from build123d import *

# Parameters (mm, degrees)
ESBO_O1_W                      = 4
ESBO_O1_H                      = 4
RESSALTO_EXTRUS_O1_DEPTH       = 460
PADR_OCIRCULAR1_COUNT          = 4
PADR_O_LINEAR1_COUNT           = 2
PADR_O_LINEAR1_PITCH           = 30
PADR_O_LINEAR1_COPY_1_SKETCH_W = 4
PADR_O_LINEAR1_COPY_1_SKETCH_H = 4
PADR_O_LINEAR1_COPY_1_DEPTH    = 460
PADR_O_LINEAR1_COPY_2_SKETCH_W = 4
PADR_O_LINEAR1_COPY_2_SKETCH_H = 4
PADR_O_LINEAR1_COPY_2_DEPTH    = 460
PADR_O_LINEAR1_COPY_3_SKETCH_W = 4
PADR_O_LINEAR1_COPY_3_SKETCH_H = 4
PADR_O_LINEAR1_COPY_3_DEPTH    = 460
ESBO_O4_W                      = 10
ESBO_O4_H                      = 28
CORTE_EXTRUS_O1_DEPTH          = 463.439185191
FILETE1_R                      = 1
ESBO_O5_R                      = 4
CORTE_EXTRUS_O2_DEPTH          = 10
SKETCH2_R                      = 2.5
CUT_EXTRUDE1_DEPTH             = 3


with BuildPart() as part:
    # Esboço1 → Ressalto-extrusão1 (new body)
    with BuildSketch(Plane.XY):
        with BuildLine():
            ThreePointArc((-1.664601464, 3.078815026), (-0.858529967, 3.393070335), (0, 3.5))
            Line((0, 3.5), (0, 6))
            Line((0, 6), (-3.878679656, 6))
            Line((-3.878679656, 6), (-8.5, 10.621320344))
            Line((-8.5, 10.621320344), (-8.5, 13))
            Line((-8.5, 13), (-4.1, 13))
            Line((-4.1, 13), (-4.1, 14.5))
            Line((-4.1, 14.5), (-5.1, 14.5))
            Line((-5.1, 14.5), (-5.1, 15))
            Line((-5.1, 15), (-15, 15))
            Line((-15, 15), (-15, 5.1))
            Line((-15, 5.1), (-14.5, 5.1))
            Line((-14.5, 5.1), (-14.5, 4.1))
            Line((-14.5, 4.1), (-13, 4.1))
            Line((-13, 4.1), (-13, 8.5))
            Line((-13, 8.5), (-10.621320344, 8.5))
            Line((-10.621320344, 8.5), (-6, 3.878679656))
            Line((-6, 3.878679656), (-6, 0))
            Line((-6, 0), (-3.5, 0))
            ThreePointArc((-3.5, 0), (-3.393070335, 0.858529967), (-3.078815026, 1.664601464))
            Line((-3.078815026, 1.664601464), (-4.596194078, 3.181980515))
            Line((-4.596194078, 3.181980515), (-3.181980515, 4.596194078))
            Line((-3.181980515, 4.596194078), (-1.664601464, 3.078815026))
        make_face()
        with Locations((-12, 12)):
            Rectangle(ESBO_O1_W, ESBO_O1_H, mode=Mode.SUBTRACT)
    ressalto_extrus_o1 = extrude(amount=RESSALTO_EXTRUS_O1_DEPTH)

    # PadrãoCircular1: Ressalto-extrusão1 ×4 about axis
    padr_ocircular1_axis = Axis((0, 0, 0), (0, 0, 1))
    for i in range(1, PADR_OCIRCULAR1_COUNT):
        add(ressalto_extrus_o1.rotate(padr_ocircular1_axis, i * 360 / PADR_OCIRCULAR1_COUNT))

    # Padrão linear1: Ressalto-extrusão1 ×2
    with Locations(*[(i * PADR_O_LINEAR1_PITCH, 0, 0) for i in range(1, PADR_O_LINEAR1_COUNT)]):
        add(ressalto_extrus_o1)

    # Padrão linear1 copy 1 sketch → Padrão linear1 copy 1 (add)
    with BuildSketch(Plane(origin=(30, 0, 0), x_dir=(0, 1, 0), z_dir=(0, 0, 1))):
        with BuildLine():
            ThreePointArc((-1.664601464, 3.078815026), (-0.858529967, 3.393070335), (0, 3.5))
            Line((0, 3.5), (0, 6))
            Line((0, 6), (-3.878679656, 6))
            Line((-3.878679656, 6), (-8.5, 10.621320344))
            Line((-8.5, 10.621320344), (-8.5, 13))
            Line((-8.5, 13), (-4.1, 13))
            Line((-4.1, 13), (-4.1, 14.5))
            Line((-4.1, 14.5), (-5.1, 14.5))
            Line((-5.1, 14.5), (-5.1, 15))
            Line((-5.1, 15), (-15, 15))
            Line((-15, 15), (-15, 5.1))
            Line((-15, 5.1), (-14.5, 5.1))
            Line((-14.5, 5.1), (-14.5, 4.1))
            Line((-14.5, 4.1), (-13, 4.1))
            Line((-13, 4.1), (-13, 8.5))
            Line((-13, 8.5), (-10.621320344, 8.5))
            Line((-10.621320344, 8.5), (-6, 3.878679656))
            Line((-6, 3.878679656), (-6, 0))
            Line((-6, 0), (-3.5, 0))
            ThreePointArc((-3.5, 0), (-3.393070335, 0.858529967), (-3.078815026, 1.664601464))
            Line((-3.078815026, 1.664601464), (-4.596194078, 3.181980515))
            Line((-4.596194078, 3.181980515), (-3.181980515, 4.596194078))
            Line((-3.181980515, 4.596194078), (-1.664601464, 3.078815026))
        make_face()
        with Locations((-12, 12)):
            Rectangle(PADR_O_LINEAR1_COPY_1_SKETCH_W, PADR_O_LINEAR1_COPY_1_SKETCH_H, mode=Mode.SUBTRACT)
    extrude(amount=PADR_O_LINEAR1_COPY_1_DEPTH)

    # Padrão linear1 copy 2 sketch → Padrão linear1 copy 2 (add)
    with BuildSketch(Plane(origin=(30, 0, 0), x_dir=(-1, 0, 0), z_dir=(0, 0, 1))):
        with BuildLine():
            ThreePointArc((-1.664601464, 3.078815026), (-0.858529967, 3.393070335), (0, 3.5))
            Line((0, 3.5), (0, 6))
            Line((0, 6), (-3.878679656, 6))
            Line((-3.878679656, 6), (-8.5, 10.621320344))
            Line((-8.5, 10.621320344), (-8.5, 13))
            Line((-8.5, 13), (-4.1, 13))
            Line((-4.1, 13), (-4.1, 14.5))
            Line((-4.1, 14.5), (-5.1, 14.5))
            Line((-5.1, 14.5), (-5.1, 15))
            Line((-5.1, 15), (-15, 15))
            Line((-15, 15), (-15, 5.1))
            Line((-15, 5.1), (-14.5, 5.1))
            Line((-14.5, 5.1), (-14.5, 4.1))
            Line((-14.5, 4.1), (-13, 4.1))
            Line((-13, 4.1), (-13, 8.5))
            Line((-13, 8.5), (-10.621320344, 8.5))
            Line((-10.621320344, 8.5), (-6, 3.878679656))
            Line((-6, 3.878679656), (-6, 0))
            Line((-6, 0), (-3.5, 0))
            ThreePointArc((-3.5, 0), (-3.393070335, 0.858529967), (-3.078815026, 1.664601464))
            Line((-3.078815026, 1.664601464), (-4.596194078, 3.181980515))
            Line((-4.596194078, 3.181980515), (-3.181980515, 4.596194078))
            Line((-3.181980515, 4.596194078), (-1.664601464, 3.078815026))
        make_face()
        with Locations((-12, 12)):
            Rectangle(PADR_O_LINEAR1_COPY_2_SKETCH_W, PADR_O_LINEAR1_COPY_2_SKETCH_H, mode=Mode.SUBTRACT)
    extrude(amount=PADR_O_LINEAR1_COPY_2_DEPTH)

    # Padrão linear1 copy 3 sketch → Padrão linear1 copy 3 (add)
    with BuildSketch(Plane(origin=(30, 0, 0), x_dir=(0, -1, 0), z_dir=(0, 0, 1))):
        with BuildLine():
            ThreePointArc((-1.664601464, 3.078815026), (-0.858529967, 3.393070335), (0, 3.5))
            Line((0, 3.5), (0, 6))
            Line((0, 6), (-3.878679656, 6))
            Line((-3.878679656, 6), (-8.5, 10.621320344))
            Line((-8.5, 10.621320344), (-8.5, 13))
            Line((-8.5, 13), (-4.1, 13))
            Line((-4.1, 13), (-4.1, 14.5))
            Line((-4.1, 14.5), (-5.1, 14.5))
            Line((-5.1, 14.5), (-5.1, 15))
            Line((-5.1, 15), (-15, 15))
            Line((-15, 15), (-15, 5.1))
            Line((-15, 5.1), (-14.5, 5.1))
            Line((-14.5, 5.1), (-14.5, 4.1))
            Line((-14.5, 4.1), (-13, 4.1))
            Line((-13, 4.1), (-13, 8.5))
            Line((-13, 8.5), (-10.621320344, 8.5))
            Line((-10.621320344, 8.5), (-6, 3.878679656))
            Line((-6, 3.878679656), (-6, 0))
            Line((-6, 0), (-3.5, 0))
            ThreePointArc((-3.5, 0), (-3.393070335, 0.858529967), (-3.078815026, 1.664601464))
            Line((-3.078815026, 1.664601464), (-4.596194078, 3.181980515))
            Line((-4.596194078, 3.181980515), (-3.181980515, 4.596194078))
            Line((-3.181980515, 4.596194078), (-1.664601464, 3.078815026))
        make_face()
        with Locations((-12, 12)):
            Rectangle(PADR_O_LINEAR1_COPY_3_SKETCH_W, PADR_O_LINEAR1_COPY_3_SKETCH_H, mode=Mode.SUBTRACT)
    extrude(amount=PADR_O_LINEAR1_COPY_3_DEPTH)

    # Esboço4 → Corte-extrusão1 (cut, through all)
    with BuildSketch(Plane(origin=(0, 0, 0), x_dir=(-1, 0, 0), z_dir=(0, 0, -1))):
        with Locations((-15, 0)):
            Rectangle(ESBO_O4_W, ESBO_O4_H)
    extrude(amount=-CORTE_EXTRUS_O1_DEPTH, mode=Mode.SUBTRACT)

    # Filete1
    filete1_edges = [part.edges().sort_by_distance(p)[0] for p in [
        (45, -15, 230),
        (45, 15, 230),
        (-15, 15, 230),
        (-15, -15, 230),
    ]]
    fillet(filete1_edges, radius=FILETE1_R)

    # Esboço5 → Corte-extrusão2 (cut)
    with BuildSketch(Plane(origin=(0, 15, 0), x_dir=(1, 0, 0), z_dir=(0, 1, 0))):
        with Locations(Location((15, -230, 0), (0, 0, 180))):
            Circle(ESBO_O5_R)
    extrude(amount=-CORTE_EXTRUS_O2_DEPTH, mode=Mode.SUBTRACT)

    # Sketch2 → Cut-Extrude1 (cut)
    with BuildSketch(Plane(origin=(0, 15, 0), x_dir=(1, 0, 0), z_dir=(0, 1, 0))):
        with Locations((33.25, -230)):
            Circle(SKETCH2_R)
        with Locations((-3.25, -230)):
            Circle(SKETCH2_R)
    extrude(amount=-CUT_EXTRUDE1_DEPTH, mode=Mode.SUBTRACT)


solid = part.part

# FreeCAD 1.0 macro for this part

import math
import FreeCAD as App
import Part
import Sketcher
Q = App.Units.Quantity


def edges_at(feature, points):
    """Names of the edges that pass closest to the given points."""
    edges = feature.Shape.Edges
    near = lambda p: min(range(len(edges)), key=lambda i: edges[i].distToShape(Part.Vertex(*p))[0])
    return sorted({f"Edge{near(p) + 1}" for p in points})

doc = App.newDocument("Part")
params = doc.addObject("Spreadsheet::Sheet", "Params")
for row, (alias, value) in enumerate([
    ("sketch1_radius", "3.5 mm"),
    ("sketch1_width", "1 mm"),
    ("sketch1_width2", "4 mm"),
    ("sketch1_length", "2 mm"),
    ("sketch1_width3", "4.4 mm"),
    ("pad1_length", "460 mm"),
    ("linearpattern_pitch", "30 mm"),
    ("sketch2_radius", "3.5 mm"),
    ("sketch2_width", "1 mm"),
    ("sketch2_width2", "4 mm"),
    ("sketch2_length", "2 mm"),
    ("sketch2_width3", "2.5 mm"),
    ("pad2_length", "460 mm"),
    ("sketch3_radius", "3.5 mm"),
    ("sketch3_width", "1 mm"),
    ("sketch3_width2", "4 mm"),
    ("sketch3_length", "2 mm"),
    ("sketch3_width3", "4.4 mm"),
    ("pad3_length", "460 mm"),
    ("sketch4_radius", "3.5 mm"),
    ("sketch4_width", "1 mm"),
    ("sketch4_width2", "4 mm"),
    ("sketch4_length", "2 mm"),
    ("sketch4_width3", "2.5 mm"),
    ("pad4_length", "460 mm"),
    ("sketch5_width", "10 mm"),
    ("sketch5_height", "28 mm"),
    ("fillet_radius", "1 mm"),
    ("sketch6_diameter", "8 mm"),
    ("pocket2_length", "10 mm"),
    ("sketch7_diameter", "5 mm"),
    ("pocket3_length", "3 mm"),
], start=1):
    params.set(f"A{row}", alias)
    params.set(f"B{row}", "=" + value)
    params.setAlias(f"B{row}", alias)

body = doc.addObject("PartDesign::Body", "Body")

sketch1 = body.newObject("Sketcher::SketchObject", "Sketch")
sketch1.AttachmentSupport = (doc.getObject("XY_Plane"), [""])
sketch1.MapMode = "FlatFace"
sketch1.addGeometry(Part.ArcOfCircle(Part.Circle(App.Vector(0, 0, 0), App.Vector(0, 0, 1), 3.5), math.radians(90), math.radians(118)), False)
sketch1.addGeometry(Part.LineSegment(App.Vector(0, 3.5, 0), App.Vector(0, 6, 0)), False)
sketch1.addGeometry(Part.LineSegment(App.Vector(0, 6, 0), App.Vector(-3.9, 6, 0)), False)
sketch1.addGeometry(Part.LineSegment(App.Vector(-3.9, 6, 0), App.Vector(-8.5, 10.6, 0)), False)
sketch1.addGeometry(Part.LineSegment(App.Vector(-8.5, 10.6, 0), App.Vector(-8.5, 13, 0)), False)
sketch1.addGeometry(Part.LineSegment(App.Vector(-8.5, 13, 0), App.Vector(-4.1, 13, 0)), False)
sketch1.addGeometry(Part.LineSegment(App.Vector(-4.1, 13, 0), App.Vector(-4.1, 14.5, 0)), False)
sketch1.addGeometry(Part.LineSegment(App.Vector(-4.1, 14.5, 0), App.Vector(-5.1, 14.5, 0)), False)
sketch1.addGeometry(Part.LineSegment(App.Vector(-5.1, 14.5, 0), App.Vector(-5.1, 15, 0)), False)
sketch1.addGeometry(Part.LineSegment(App.Vector(-5.1, 15, 0), App.Vector(-15, 15, 0)), False)
sketch1.addGeometry(Part.LineSegment(App.Vector(-15, 15, 0), App.Vector(-15, 5.1, 0)), False)
sketch1.addGeometry(Part.LineSegment(App.Vector(-15, 5.1, 0), App.Vector(-14.5, 5.1, 0)), False)
sketch1.addGeometry(Part.LineSegment(App.Vector(-14.5, 5.1, 0), App.Vector(-14.5, 4.1, 0)), False)
sketch1.addGeometry(Part.LineSegment(App.Vector(-14.5, 4.1, 0), App.Vector(-13, 4.1, 0)), False)
sketch1.addGeometry(Part.LineSegment(App.Vector(-13, 4.1, 0), App.Vector(-13, 8.5, 0)), False)
sketch1.addGeometry(Part.LineSegment(App.Vector(-13, 8.5, 0), App.Vector(-10.6, 8.5, 0)), False)
sketch1.addGeometry(Part.LineSegment(App.Vector(-10.6, 8.5, 0), App.Vector(-6, 3.9, 0)), False)
sketch1.addGeometry(Part.LineSegment(App.Vector(-6, 3.9, 0), App.Vector(-6, 0, 0)), False)
sketch1.addGeometry(Part.LineSegment(App.Vector(-6, 0, 0), App.Vector(-3.5, 0, 0)), False)
sketch1.addGeometry(Part.ArcOfCircle(Part.Circle(App.Vector(0, 0, 0), App.Vector(0, 0, 1), 3.5), math.radians(152), math.radians(180)), False)
sketch1.addGeometry(Part.LineSegment(App.Vector(-3.1, 1.7, 0), App.Vector(-4.6, 3.2, 0)), False)
sketch1.addGeometry(Part.LineSegment(App.Vector(-4.6, 3.2, 0), App.Vector(-3.2, 4.6, 0)), False)
sketch1.addGeometry(Part.LineSegment(App.Vector(-3.2, 4.6, 0), App.Vector(-1.7, 3.1, 0)), False)
sketch1.addGeometry(Part.LineSegment(App.Vector(-10, 10, 0), App.Vector(-14, 10, 0)), False)
sketch1.addGeometry(Part.LineSegment(App.Vector(-14, 10, 0), App.Vector(-14, 14, 0)), False)
sketch1.addGeometry(Part.LineSegment(App.Vector(-14, 14, 0), App.Vector(-10, 14, 0)), False)
sketch1.addGeometry(Part.LineSegment(App.Vector(-10, 14, 0), App.Vector(-10, 10, 0)), False)
sketch1.addConstraint(Sketcher.Constraint("Coincident", 0, 1, 1, 1))
sketch1.addConstraint(Sketcher.Constraint("Coincident", 1, 2, 2, 1))
sketch1.addConstraint(Sketcher.Constraint("Coincident", 2, 2, 3, 1))
sketch1.addConstraint(Sketcher.Constraint("Coincident", 3, 2, 4, 1))
sketch1.addConstraint(Sketcher.Constraint("Coincident", 4, 2, 5, 1))
sketch1.addConstraint(Sketcher.Constraint("Coincident", 5, 2, 6, 1))
sketch1.addConstraint(Sketcher.Constraint("Coincident", 6, 2, 7, 1))
sketch1.addConstraint(Sketcher.Constraint("Coincident", 7, 2, 8, 1))
sketch1.addConstraint(Sketcher.Constraint("Coincident", 8, 2, 9, 1))
sketch1.addConstraint(Sketcher.Constraint("Coincident", 9, 2, 10, 1))
sketch1.addConstraint(Sketcher.Constraint("Coincident", 10, 2, 11, 1))
sketch1.addConstraint(Sketcher.Constraint("Coincident", 11, 2, 12, 1))
sketch1.addConstraint(Sketcher.Constraint("Coincident", 12, 2, 13, 1))
sketch1.addConstraint(Sketcher.Constraint("Coincident", 13, 2, 14, 1))
sketch1.addConstraint(Sketcher.Constraint("Coincident", 14, 2, 15, 1))
sketch1.addConstraint(Sketcher.Constraint("Coincident", 15, 2, 16, 1))
sketch1.addConstraint(Sketcher.Constraint("Coincident", 16, 2, 17, 1))
sketch1.addConstraint(Sketcher.Constraint("Coincident", 17, 2, 18, 1))
sketch1.addConstraint(Sketcher.Constraint("Coincident", 18, 2, 19, 2))
sketch1.addConstraint(Sketcher.Constraint("Coincident", 19, 1, 20, 1))
sketch1.addConstraint(Sketcher.Constraint("Coincident", 20, 2, 21, 1))
sketch1.addConstraint(Sketcher.Constraint("Coincident", 21, 2, 22, 1))
sketch1.addConstraint(Sketcher.Constraint("Coincident", 22, 2, 0, 2))
sketch1.addConstraint(Sketcher.Constraint("Coincident", 23, 2, 24, 1))
sketch1.addConstraint(Sketcher.Constraint("Coincident", 24, 2, 25, 1))
sketch1.addConstraint(Sketcher.Constraint("Coincident", 25, 2, 26, 1))
sketch1.addConstraint(Sketcher.Constraint("Coincident", 26, 2, 23, 1))
sketch1.addConstraint(Sketcher.Constraint("Vertical", 1))
sketch1.addConstraint(Sketcher.Constraint("Horizontal", 2))
sketch1.addConstraint(Sketcher.Constraint("Vertical", 4))
sketch1.addConstraint(Sketcher.Constraint("Horizontal", 5))
sketch1.addConstraint(Sketcher.Constraint("Vertical", 6))
sketch1.addConstraint(Sketcher.Constraint("Horizontal", 7))
sketch1.addConstraint(Sketcher.Constraint("Vertical", 8))
sketch1.addConstraint(Sketcher.Constraint("Horizontal", 9))
sketch1.addConstraint(Sketcher.Constraint("Vertical", 10))
sketch1.addConstraint(Sketcher.Constraint("Horizontal", 11))
sketch1.addConstraint(Sketcher.Constraint("Vertical", 12))
sketch1.addConstraint(Sketcher.Constraint("Horizontal", 13))
sketch1.addConstraint(Sketcher.Constraint("Vertical", 14))
sketch1.addConstraint(Sketcher.Constraint("Horizontal", 15))
sketch1.addConstraint(Sketcher.Constraint("Vertical", 17))
sketch1.addConstraint(Sketcher.Constraint("Horizontal", 18))
sketch1.addConstraint(Sketcher.Constraint("Horizontal", 23))
sketch1.addConstraint(Sketcher.Constraint("Vertical", 24))
sketch1.addConstraint(Sketcher.Constraint("Horizontal", 25))
sketch1.addConstraint(Sketcher.Constraint("Vertical", 26))
sketch1.addConstraint(Sketcher.Constraint("Coincident", 0, 3, -1, 1))
sketch1.addConstraint(Sketcher.Constraint("Coincident", 19, 3, -1, 1))
sketch1.addConstraint(Sketcher.Constraint("Equal", 0, 19))
sketch1.addConstraint(Sketcher.Constraint("PointOnObject", 0, 1, -2))
sketch1.addConstraint(Sketcher.Constraint("PointOnObject", 17, 2, -1))
sketch1.addConstraint(Sketcher.Constraint("Parallel", 3, 16))
sketch1.addConstraint(Sketcher.Constraint("Parallel", 16, 20))
sketch1.addConstraint(Sketcher.Constraint("Perpendicular", 20, 21))
sketch1.addConstraint(Sketcher.Constraint("Perpendicular", 21, 22))
sketch1.addConstraint(Sketcher.Constraint("Equal", 18, 1))
sketch1.addConstraint(Sketcher.Constraint("Equal", 15, 4))
sketch1.addConstraint(Sketcher.Constraint("Equal", 13, 6))
sketch1.addConstraint(Sketcher.Constraint("Equal", 11, 8))
sketch1.addConstraint(Sketcher.Constraint("Equal", 9, 10))
sketch1.addConstraint(Sketcher.Constraint("Equal", 7, 12))
sketch1.addConstraint(Sketcher.Constraint("Equal", 5, 14))
sketch1.addConstraint(Sketcher.Constraint("Equal", 2, 17))
sketch1.addConstraint(Sketcher.Constraint("Equal", 25, 24))
sketch1.addConstraint(Sketcher.Constraint("Equal", 20, 22))
sketch1.addConstraint(Sketcher.Constraint("Radius", 0, Q("3.5 mm")))
sketch1.addConstraint(Sketcher.Constraint("DistanceX", 7, 2, 7, 1, Q("1 mm")))
sketch1.addConstraint(Sketcher.Constraint("DistanceX", 23, 2, 23, 1, Q("4 mm")))
sketch1.addConstraint(Sketcher.Constraint("Angle", 3, Q("135 deg")))
sketch1.addConstraint(Sketcher.Constraint("Distance", 21, Q("2 mm")))
sketch1.addConstraint(Sketcher.Constraint("DistanceX", 5, 1, 5, 2, Q("4.4 mm")))
sketch1.addConstraint(Sketcher.Constraint("DistanceX", 9, 2, 9, 1, Q("9.9 mm")))
sketch1.addConstraint(Sketcher.Constraint("DistanceX", 11, 1, 11, 2, Q("0.5 mm")))
sketch1.addConstraint(Sketcher.Constraint("DistanceX", 13, 1, 13, 2, Q("1.5 mm")))
sketch1.addConstraint(Sketcher.Constraint("DistanceX", 18, 1, 18, 2, Q("2.5 mm")))
sketch1.addConstraint(Sketcher.Constraint("DistanceY", -1, 1, 4, 2, Q("13 mm")))
sketch1.addConstraint(Sketcher.Constraint("DistanceX", 23, 2, -1, 1, Q("14 mm")))
sketch1.addConstraint(Sketcher.Constraint("DistanceY", -1, 1, 23, 2, Q("10 mm")))
sketch1.addConstraint(Sketcher.Constraint("Distance", 20, Q("2.145898 mm")))
sketch1.addConstraint(Sketcher.Constraint("DistanceX", 2, 2, 2, 1, Q("3.87868 mm")))
sketch1.setExpression("Constraints[66]", "Params.sketch1_radius")
sketch1.setExpression("Constraints[67]", "Params.sketch1_width")
sketch1.setExpression("Constraints[68]", "Params.sketch1_width2")
sketch1.setExpression("Constraints[70]", "Params.sketch1_length")
sketch1.setExpression("Constraints[71]", "Params.sketch1_width3")
pad1 = body.newObject("PartDesign::Pad", "Pad")
pad1.Profile = sketch1
pad1.setExpression("Length", "Params.pad1_length")
doc.recompute()

polarpattern = body.newObject("PartDesign::PolarPattern", "PolarPattern")
polarpattern.Originals = [pad1]
polarpattern.Axis = (doc.getObject("Z_Axis"), [""])
polarpattern.Angle = 360
polarpattern.Occurrences = 4
body.Tip = polarpattern
doc.recompute()

linearpattern = body.newObject("PartDesign::LinearPattern", "LinearPattern")
linearpattern.Originals = [pad1]
linearpattern.Direction = (doc.getObject("X_Axis"), [""])
linearpattern.Mode = "offset"
linearpattern.setExpression("Offset", "Params.linearpattern_pitch")
linearpattern.Occurrences = 2
body.Tip = linearpattern

sketch2 = body.newObject("Sketcher::SketchObject", "Sketch001")
sketch2.AttachmentSupport = (doc.getObject("XY_Plane"), [""])
sketch2.MapMode = "FlatFace"
sketch2.addGeometry(Part.ArcOfCircle(Part.Circle(App.Vector(30, 0, 0), App.Vector(0, 0, 1), 3.5), math.radians(180), math.radians(208)), False)
sketch2.addGeometry(Part.LineSegment(App.Vector(26.5, 0, 0), App.Vector(24, 0, 0)), False)
sketch2.addGeometry(Part.LineSegment(App.Vector(24, 0, 0), App.Vector(24, -3.9, 0)), False)
sketch2.addGeometry(Part.LineSegment(App.Vector(24, -3.9, 0), App.Vector(19.4, -8.5, 0)), False)
sketch2.addGeometry(Part.LineSegment(App.Vector(19.4, -8.5, 0), App.Vector(17, -8.5, 0)), False)
sketch2.addGeometry(Part.LineSegment(App.Vector(17, -8.5, 0), App.Vector(17, -4.1, 0)), False)
sketch2.addGeometry(Part.LineSegment(App.Vector(17, -4.1, 0), App.Vector(15.5, -4.1, 0)), False)
sketch2.addGeometry(Part.LineSegment(App.Vector(15.5, -4.1, 0), App.Vector(15.5, -5.1, 0)), False)
sketch2.addGeometry(Part.LineSegment(App.Vector(15.5, -5.1, 0), App.Vector(15, -5.1, 0)), False)
sketch2.addGeometry(Part.LineSegment(App.Vector(15, -5.1, 0), App.Vector(15, -15, 0)), False)
sketch2.addGeometry(Part.LineSegment(App.Vector(15, -15, 0), App.Vector(24.9, -15, 0)), False)
sketch2.addGeometry(Part.LineSegment(App.Vector(24.9, -15, 0), App.Vector(24.9, -14.5, 0)), False)
sketch2.addGeometry(Part.LineSegment(App.Vector(24.9, -14.5, 0), App.Vector(25.9, -14.5, 0)), False)
sketch2.addGeometry(Part.LineSegment(App.Vector(25.9, -14.5, 0), App.Vector(25.9, -13, 0)), False)
sketch2.addGeometry(Part.LineSegment(App.Vector(25.9, -13, 0), App.Vector(21.5, -13, 0)), False)
sketch2.addGeometry(Part.LineSegment(App.Vector(21.5, -13, 0), App.Vector(21.5, -10.6, 0)), False)
sketch2.addGeometry(Part.LineSegment(App.Vector(21.5, -10.6, 0), App.Vector(26.1, -6, 0)), False)
sketch2.addGeometry(Part.LineSegment(App.Vector(26.1, -6, 0), App.Vector(30, -6, 0)), False)
sketch2.addGeometry(Part.LineSegment(App.Vector(30, -6, 0), App.Vector(30, -3.5, 0)), False)
sketch2.addGeometry(Part.ArcOfCircle(Part.Circle(App.Vector(30, 0, 0), App.Vector(0, 0, 1), 3.5), math.radians(-118), math.radians(-90)), False)
sketch2.addGeometry(Part.LineSegment(App.Vector(28.3, -3.1, 0), App.Vector(26.8, -4.6, 0)), False)
sketch2.addGeometry(Part.LineSegment(App.Vector(26.8, -4.6, 0), App.Vector(25.4, -3.2, 0)), False)
sketch2.addGeometry(Part.LineSegment(App.Vector(25.4, -3.2, 0), App.Vector(26.9, -1.7, 0)), False)
sketch2.addGeometry(Part.LineSegment(App.Vector(20, -10, 0), App.Vector(20, -14, 0)), False)
sketch2.addGeometry(Part.LineSegment(App.Vector(20, -14, 0), App.Vector(16, -14, 0)), False)
sketch2.addGeometry(Part.LineSegment(App.Vector(16, -14, 0), App.Vector(16, -10, 0)), False)
sketch2.addGeometry(Part.LineSegment(App.Vector(16, -10, 0), App.Vector(20, -10, 0)), False)
sketch2.addConstraint(Sketcher.Constraint("Coincident", 0, 1, 1, 1))
sketch2.addConstraint(Sketcher.Constraint("Coincident", 1, 2, 2, 1))
sketch2.addConstraint(Sketcher.Constraint("Coincident", 2, 2, 3, 1))
sketch2.addConstraint(Sketcher.Constraint("Coincident", 3, 2, 4, 1))
sketch2.addConstraint(Sketcher.Constraint("Coincident", 4, 2, 5, 1))
sketch2.addConstraint(Sketcher.Constraint("Coincident", 5, 2, 6, 1))
sketch2.addConstraint(Sketcher.Constraint("Coincident", 6, 2, 7, 1))
sketch2.addConstraint(Sketcher.Constraint("Coincident", 7, 2, 8, 1))
sketch2.addConstraint(Sketcher.Constraint("Coincident", 8, 2, 9, 1))
sketch2.addConstraint(Sketcher.Constraint("Coincident", 9, 2, 10, 1))
sketch2.addConstraint(Sketcher.Constraint("Coincident", 10, 2, 11, 1))
sketch2.addConstraint(Sketcher.Constraint("Coincident", 11, 2, 12, 1))
sketch2.addConstraint(Sketcher.Constraint("Coincident", 12, 2, 13, 1))
sketch2.addConstraint(Sketcher.Constraint("Coincident", 13, 2, 14, 1))
sketch2.addConstraint(Sketcher.Constraint("Coincident", 14, 2, 15, 1))
sketch2.addConstraint(Sketcher.Constraint("Coincident", 15, 2, 16, 1))
sketch2.addConstraint(Sketcher.Constraint("Coincident", 16, 2, 17, 1))
sketch2.addConstraint(Sketcher.Constraint("Coincident", 17, 2, 18, 1))
sketch2.addConstraint(Sketcher.Constraint("Coincident", 18, 2, 19, 2))
sketch2.addConstraint(Sketcher.Constraint("Coincident", 19, 1, 20, 1))
sketch2.addConstraint(Sketcher.Constraint("Coincident", 20, 2, 21, 1))
sketch2.addConstraint(Sketcher.Constraint("Coincident", 21, 2, 22, 1))
sketch2.addConstraint(Sketcher.Constraint("Coincident", 22, 2, 0, 2))
sketch2.addConstraint(Sketcher.Constraint("Coincident", 23, 2, 24, 1))
sketch2.addConstraint(Sketcher.Constraint("Coincident", 24, 2, 25, 1))
sketch2.addConstraint(Sketcher.Constraint("Coincident", 25, 2, 26, 1))
sketch2.addConstraint(Sketcher.Constraint("Coincident", 26, 2, 23, 1))
sketch2.addConstraint(Sketcher.Constraint("Horizontal", 1))
sketch2.addConstraint(Sketcher.Constraint("Vertical", 2))
sketch2.addConstraint(Sketcher.Constraint("Horizontal", 4))
sketch2.addConstraint(Sketcher.Constraint("Vertical", 5))
sketch2.addConstraint(Sketcher.Constraint("Horizontal", 6))
sketch2.addConstraint(Sketcher.Constraint("Vertical", 7))
sketch2.addConstraint(Sketcher.Constraint("Horizontal", 8))
sketch2.addConstraint(Sketcher.Constraint("Vertical", 9))
sketch2.addConstraint(Sketcher.Constraint("Horizontal", 10))
sketch2.addConstraint(Sketcher.Constraint("Vertical", 11))
sketch2.addConstraint(Sketcher.Constraint("Horizontal", 12))
sketch2.addConstraint(Sketcher.Constraint("Vertical", 13))
sketch2.addConstraint(Sketcher.Constraint("Horizontal", 14))
sketch2.addConstraint(Sketcher.Constraint("Vertical", 15))
sketch2.addConstraint(Sketcher.Constraint("Horizontal", 17))
sketch2.addConstraint(Sketcher.Constraint("Vertical", 18))
sketch2.addConstraint(Sketcher.Constraint("Vertical", 23))
sketch2.addConstraint(Sketcher.Constraint("Horizontal", 24))
sketch2.addConstraint(Sketcher.Constraint("Vertical", 25))
sketch2.addConstraint(Sketcher.Constraint("Horizontal", 26))
sketch2.addConstraint(Sketcher.Constraint("Coincident", 19, 3, 0, 3))
sketch2.addConstraint(Sketcher.Constraint("Equal", 0, 19))
sketch2.addConstraint(Sketcher.Constraint("PointOnObject", 0, 3, -1))
sketch2.addConstraint(Sketcher.Constraint("PointOnObject", 0, 1, -1))
sketch2.addConstraint(Sketcher.Constraint("Parallel", 3, 16))
sketch2.addConstraint(Sketcher.Constraint("Parallel", 16, 20))
sketch2.addConstraint(Sketcher.Constraint("Perpendicular", 20, 21))
sketch2.addConstraint(Sketcher.Constraint("Perpendicular", 21, 22))
sketch2.addConstraint(Sketcher.Constraint("Vertical", 19, 3, 17, 2))
sketch2.addConstraint(Sketcher.Constraint("Equal", 17, 2))
sketch2.addConstraint(Sketcher.Constraint("Equal", 14, 5))
sketch2.addConstraint(Sketcher.Constraint("Equal", 12, 7))
sketch2.addConstraint(Sketcher.Constraint("Equal", 10, 9))
sketch2.addConstraint(Sketcher.Constraint("Equal", 8, 11))
sketch2.addConstraint(Sketcher.Constraint("Equal", 6, 13))
sketch2.addConstraint(Sketcher.Constraint("Equal", 4, 15))
sketch2.addConstraint(Sketcher.Constraint("Equal", 1, 18))
sketch2.addConstraint(Sketcher.Constraint("Equal", 26, 23))
sketch2.addConstraint(Sketcher.Constraint("Equal", 20, 22))
sketch2.addConstraint(Sketcher.Constraint("Radius", 0, Q("3.5 mm")))
sketch2.addConstraint(Sketcher.Constraint("DistanceX", 12, 1, 12, 2, Q("1 mm")))
sketch2.addConstraint(Sketcher.Constraint("DistanceX", 24, 2, 24, 1, Q("4 mm")))
sketch2.addConstraint(Sketcher.Constraint("Angle", 3, Q("-135 deg")))
sketch2.addConstraint(Sketcher.Constraint("Distance", 21, Q("2 mm")))
sketch2.addConstraint(Sketcher.Constraint("DistanceX", 1, 2, 1, 1, Q("2.5 mm")))
sketch2.addConstraint(Sketcher.Constraint("DistanceX", 6, 2, 6, 1, Q("1.5 mm")))
sketch2.addConstraint(Sketcher.Constraint("DistanceX", 8, 2, 8, 1, Q("0.5 mm")))
sketch2.addConstraint(Sketcher.Constraint("DistanceX", 10, 1, 10, 2, Q("9.9 mm")))
sketch2.addConstraint(Sketcher.Constraint("DistanceX", 14, 2, 14, 1, Q("4.4 mm")))
sketch2.addConstraint(Sketcher.Constraint("DistanceX", -1, 1, 0, 3, Q("30 mm")))
sketch2.addConstraint(Sketcher.Constraint("DistanceX", -1, 1, 4, 2, Q("17 mm")))
sketch2.addConstraint(Sketcher.Constraint("DistanceX", -1, 1, 23, 2, Q("20 mm")))
sketch2.addConstraint(Sketcher.Constraint("DistanceY", 23, 2, -1, 1, Q("14 mm")))
sketch2.addConstraint(Sketcher.Constraint("Distance", 20, Q("2.145898 mm")))
sketch2.addConstraint(Sketcher.Constraint("DistanceX", 4, 2, 4, 1, Q("2.37868 mm")))
sketch2.setExpression("Constraints[66]", "Params.sketch2_radius")
sketch2.setExpression("Constraints[67]", "Params.sketch2_width")
sketch2.setExpression("Constraints[68]", "Params.sketch2_width2")
sketch2.setExpression("Constraints[70]", "Params.sketch2_length")
sketch2.setExpression("Constraints[71]", "Params.sketch2_width3")
pad2 = body.newObject("PartDesign::Pad", "Pad001")
pad2.Profile = sketch2
pad2.setExpression("Length", "Params.pad2_length")

sketch3 = body.newObject("Sketcher::SketchObject", "Sketch002")
sketch3.AttachmentSupport = (doc.getObject("XY_Plane"), [""])
sketch3.MapMode = "FlatFace"
sketch3.addGeometry(Part.ArcOfCircle(Part.Circle(App.Vector(30, 0, 0), App.Vector(0, 0, 1), 3.5), math.radians(-90), math.radians(-62)), False)
sketch3.addGeometry(Part.LineSegment(App.Vector(30, -3.5, 0), App.Vector(30, -6, 0)), False)
sketch3.addGeometry(Part.LineSegment(App.Vector(30, -6, 0), App.Vector(33.9, -6, 0)), False)
sketch3.addGeometry(Part.LineSegment(App.Vector(33.9, -6, 0), App.Vector(38.5, -10.6, 0)), False)
sketch3.addGeometry(Part.LineSegment(App.Vector(38.5, -10.6, 0), App.Vector(38.5, -13, 0)), False)
sketch3.addGeometry(Part.LineSegment(App.Vector(38.5, -13, 0), App.Vector(34.1, -13, 0)), False)
sketch3.addGeometry(Part.LineSegment(App.Vector(34.1, -13, 0), App.Vector(34.1, -14.5, 0)), False)
sketch3.addGeometry(Part.LineSegment(App.Vector(34.1, -14.5, 0), App.Vector(35.1, -14.5, 0)), False)
sketch3.addGeometry(Part.LineSegment(App.Vector(35.1, -14.5, 0), App.Vector(35.1, -15, 0)), False)
sketch3.addGeometry(Part.LineSegment(App.Vector(35.1, -15, 0), App.Vector(45, -15, 0)), False)
sketch3.addGeometry(Part.LineSegment(App.Vector(45, -15, 0), App.Vector(45, -5.1, 0)), False)
sketch3.addGeometry(Part.LineSegment(App.Vector(45, -5.1, 0), App.Vector(44.5, -5.1, 0)), False)
sketch3.addGeometry(Part.LineSegment(App.Vector(44.5, -5.1, 0), App.Vector(44.5, -4.1, 0)), False)
sketch3.addGeometry(Part.LineSegment(App.Vector(44.5, -4.1, 0), App.Vector(43, -4.1, 0)), False)
sketch3.addGeometry(Part.LineSegment(App.Vector(43, -4.1, 0), App.Vector(43, -8.5, 0)), False)
sketch3.addGeometry(Part.LineSegment(App.Vector(43, -8.5, 0), App.Vector(40.6, -8.5, 0)), False)
sketch3.addGeometry(Part.LineSegment(App.Vector(40.6, -8.5, 0), App.Vector(36, -3.9, 0)), False)
sketch3.addGeometry(Part.LineSegment(App.Vector(36, -3.9, 0), App.Vector(36, 0, 0)), False)
sketch3.addGeometry(Part.LineSegment(App.Vector(36, 0, 0), App.Vector(33.5, 0, 0)), False)
sketch3.addGeometry(Part.ArcOfCircle(Part.Circle(App.Vector(30, 0, 0), App.Vector(0, 0, 1), 3.5), math.radians(-28), math.radians(0)), False)
sketch3.addGeometry(Part.LineSegment(App.Vector(33.1, -1.7, 0), App.Vector(34.6, -3.2, 0)), False)
sketch3.addGeometry(Part.LineSegment(App.Vector(34.6, -3.2, 0), App.Vector(33.2, -4.6, 0)), False)
sketch3.addGeometry(Part.LineSegment(App.Vector(33.2, -4.6, 0), App.Vector(31.7, -3.1, 0)), False)
sketch3.addGeometry(Part.LineSegment(App.Vector(40, -10, 0), App.Vector(44, -10, 0)), False)
sketch3.addGeometry(Part.LineSegment(App.Vector(44, -10, 0), App.Vector(44, -14, 0)), False)
sketch3.addGeometry(Part.LineSegment(App.Vector(44, -14, 0), App.Vector(40, -14, 0)), False)
sketch3.addGeometry(Part.LineSegment(App.Vector(40, -14, 0), App.Vector(40, -10, 0)), False)
sketch3.addConstraint(Sketcher.Constraint("Coincident", 0, 1, 1, 1))
sketch3.addConstraint(Sketcher.Constraint("Coincident", 1, 2, 2, 1))
sketch3.addConstraint(Sketcher.Constraint("Coincident", 2, 2, 3, 1))
sketch3.addConstraint(Sketcher.Constraint("Coincident", 3, 2, 4, 1))
sketch3.addConstraint(Sketcher.Constraint("Coincident", 4, 2, 5, 1))
sketch3.addConstraint(Sketcher.Constraint("Coincident", 5, 2, 6, 1))
sketch3.addConstraint(Sketcher.Constraint("Coincident", 6, 2, 7, 1))
sketch3.addConstraint(Sketcher.Constraint("Coincident", 7, 2, 8, 1))
sketch3.addConstraint(Sketcher.Constraint("Coincident", 8, 2, 9, 1))
sketch3.addConstraint(Sketcher.Constraint("Coincident", 9, 2, 10, 1))
sketch3.addConstraint(Sketcher.Constraint("Coincident", 10, 2, 11, 1))
sketch3.addConstraint(Sketcher.Constraint("Coincident", 11, 2, 12, 1))
sketch3.addConstraint(Sketcher.Constraint("Coincident", 12, 2, 13, 1))
sketch3.addConstraint(Sketcher.Constraint("Coincident", 13, 2, 14, 1))
sketch3.addConstraint(Sketcher.Constraint("Coincident", 14, 2, 15, 1))
sketch3.addConstraint(Sketcher.Constraint("Coincident", 15, 2, 16, 1))
sketch3.addConstraint(Sketcher.Constraint("Coincident", 16, 2, 17, 1))
sketch3.addConstraint(Sketcher.Constraint("Coincident", 17, 2, 18, 1))
sketch3.addConstraint(Sketcher.Constraint("Coincident", 18, 2, 19, 2))
sketch3.addConstraint(Sketcher.Constraint("Coincident", 19, 1, 20, 1))
sketch3.addConstraint(Sketcher.Constraint("Coincident", 20, 2, 21, 1))
sketch3.addConstraint(Sketcher.Constraint("Coincident", 21, 2, 22, 1))
sketch3.addConstraint(Sketcher.Constraint("Coincident", 22, 2, 0, 2))
sketch3.addConstraint(Sketcher.Constraint("Coincident", 23, 2, 24, 1))
sketch3.addConstraint(Sketcher.Constraint("Coincident", 24, 2, 25, 1))
sketch3.addConstraint(Sketcher.Constraint("Coincident", 25, 2, 26, 1))
sketch3.addConstraint(Sketcher.Constraint("Coincident", 26, 2, 23, 1))
sketch3.addConstraint(Sketcher.Constraint("Vertical", 1))
sketch3.addConstraint(Sketcher.Constraint("Horizontal", 2))
sketch3.addConstraint(Sketcher.Constraint("Vertical", 4))
sketch3.addConstraint(Sketcher.Constraint("Horizontal", 5))
sketch3.addConstraint(Sketcher.Constraint("Vertical", 6))
sketch3.addConstraint(Sketcher.Constraint("Horizontal", 7))
sketch3.addConstraint(Sketcher.Constraint("Vertical", 8))
sketch3.addConstraint(Sketcher.Constraint("Horizontal", 9))
sketch3.addConstraint(Sketcher.Constraint("Vertical", 10))
sketch3.addConstraint(Sketcher.Constraint("Horizontal", 11))
sketch3.addConstraint(Sketcher.Constraint("Vertical", 12))
sketch3.addConstraint(Sketcher.Constraint("Horizontal", 13))
sketch3.addConstraint(Sketcher.Constraint("Vertical", 14))
sketch3.addConstraint(Sketcher.Constraint("Horizontal", 15))
sketch3.addConstraint(Sketcher.Constraint("Vertical", 17))
sketch3.addConstraint(Sketcher.Constraint("Horizontal", 18))
sketch3.addConstraint(Sketcher.Constraint("Horizontal", 23))
sketch3.addConstraint(Sketcher.Constraint("Vertical", 24))
sketch3.addConstraint(Sketcher.Constraint("Horizontal", 25))
sketch3.addConstraint(Sketcher.Constraint("Vertical", 26))
sketch3.addConstraint(Sketcher.Constraint("Coincident", 19, 3, 0, 3))
sketch3.addConstraint(Sketcher.Constraint("Equal", 0, 19))
sketch3.addConstraint(Sketcher.Constraint("PointOnObject", 0, 3, -1))
sketch3.addConstraint(Sketcher.Constraint("PointOnObject", 17, 2, -1))
sketch3.addConstraint(Sketcher.Constraint("Parallel", 3, 16))
sketch3.addConstraint(Sketcher.Constraint("Parallel", 16, 20))
sketch3.addConstraint(Sketcher.Constraint("Perpendicular", 20, 21))
sketch3.addConstraint(Sketcher.Constraint("Perpendicular", 21, 22))
sketch3.addConstraint(Sketcher.Constraint("Vertical", 19, 3, 0, 1))
sketch3.addConstraint(Sketcher.Constraint("Equal", 18, 1))
sketch3.addConstraint(Sketcher.Constraint("Equal", 15, 4))
sketch3.addConstraint(Sketcher.Constraint("Equal", 13, 6))
sketch3.addConstraint(Sketcher.Constraint("Equal", 11, 8))
sketch3.addConstraint(Sketcher.Constraint("Equal", 9, 10))
sketch3.addConstraint(Sketcher.Constraint("Equal", 7, 12))
sketch3.addConstraint(Sketcher.Constraint("Equal", 5, 14))
sketch3.addConstraint(Sketcher.Constraint("Equal", 2, 17))
sketch3.addConstraint(Sketcher.Constraint("Equal", 25, 24))
sketch3.addConstraint(Sketcher.Constraint("Equal", 20, 22))
sketch3.addConstraint(Sketcher.Constraint("Radius", 0, Q("3.5 mm")))
sketch3.addConstraint(Sketcher.Constraint("DistanceX", 7, 1, 7, 2, Q("1 mm")))
sketch3.addConstraint(Sketcher.Constraint("DistanceX", 23, 1, 23, 2, Q("4 mm")))
sketch3.addConstraint(Sketcher.Constraint("Angle", 3, Q("-45 deg")))
sketch3.addConstraint(Sketcher.Constraint("Distance", 21, Q("2 mm")))
sketch3.addConstraint(Sketcher.Constraint("DistanceX", 5, 2, 5, 1, Q("4.4 mm")))
sketch3.addConstraint(Sketcher.Constraint("DistanceX", 9, 1, 9, 2, Q("9.9 mm")))
sketch3.addConstraint(Sketcher.Constraint("DistanceX", 11, 2, 11, 1, Q("0.5 mm")))
sketch3.addConstraint(Sketcher.Constraint("DistanceX", 13, 2, 13, 1, Q("1.5 mm")))
sketch3.addConstraint(Sketcher.Constraint("DistanceX", 18, 2, 18, 1, Q("2.5 mm")))
sketch3.addConstraint(Sketcher.Constraint("DistanceX", -1, 1, 0, 3, Q("30 mm")))
sketch3.addConstraint(Sketcher.Constraint("DistanceY", 4, 2, -1, 1, Q("13 mm")))
sketch3.addConstraint(Sketcher.Constraint("DistanceX", -1, 1, 23, 2, Q("44 mm")))
sketch3.addConstraint(Sketcher.Constraint("DistanceY", 23, 2, -1, 1, Q("10 mm")))
sketch3.addConstraint(Sketcher.Constraint("Distance", 20, Q("2.145898 mm")))
sketch3.addConstraint(Sketcher.Constraint("DistanceX", 2, 1, 2, 2, Q("3.87868 mm")))
sketch3.setExpression("Constraints[66]", "Params.sketch3_radius")
sketch3.setExpression("Constraints[67]", "Params.sketch3_width")
sketch3.setExpression("Constraints[68]", "Params.sketch3_width2")
sketch3.setExpression("Constraints[70]", "Params.sketch3_length")
sketch3.setExpression("Constraints[71]", "Params.sketch3_width3")
pad3 = body.newObject("PartDesign::Pad", "Pad002")
pad3.Profile = sketch3
pad3.setExpression("Length", "Params.pad3_length")

sketch4 = body.newObject("Sketcher::SketchObject", "Sketch003")
sketch4.AttachmentSupport = (doc.getObject("XY_Plane"), [""])
sketch4.MapMode = "FlatFace"
sketch4.addGeometry(Part.ArcOfCircle(Part.Circle(App.Vector(30, 0, 0), App.Vector(0, 0, 1), 3.5), math.radians(0), math.radians(28)), False)
sketch4.addGeometry(Part.LineSegment(App.Vector(33.5, 0, 0), App.Vector(36, 0, 0)), False)
sketch4.addGeometry(Part.LineSegment(App.Vector(36, 0, 0), App.Vector(36, 3.9, 0)), False)
sketch4.addGeometry(Part.LineSegment(App.Vector(36, 3.9, 0), App.Vector(40.6, 8.5, 0)), False)
sketch4.addGeometry(Part.LineSegment(App.Vector(40.6, 8.5, 0), App.Vector(43, 8.5, 0)), False)
sketch4.addGeometry(Part.LineSegment(App.Vector(43, 8.5, 0), App.Vector(43, 4.1, 0)), False)
sketch4.addGeometry(Part.LineSegment(App.Vector(43, 4.1, 0), App.Vector(44.5, 4.1, 0)), False)
sketch4.addGeometry(Part.LineSegment(App.Vector(44.5, 4.1, 0), App.Vector(44.5, 5.1, 0)), False)
sketch4.addGeometry(Part.LineSegment(App.Vector(44.5, 5.1, 0), App.Vector(45, 5.1, 0)), False)
sketch4.addGeometry(Part.LineSegment(App.Vector(45, 5.1, 0), App.Vector(45, 15, 0)), False)
sketch4.addGeometry(Part.LineSegment(App.Vector(45, 15, 0), App.Vector(35.1, 15, 0)), False)
sketch4.addGeometry(Part.LineSegment(App.Vector(35.1, 15, 0), App.Vector(35.1, 14.5, 0)), False)
sketch4.addGeometry(Part.LineSegment(App.Vector(35.1, 14.5, 0), App.Vector(34.1, 14.5, 0)), False)
sketch4.addGeometry(Part.LineSegment(App.Vector(34.1, 14.5, 0), App.Vector(34.1, 13, 0)), False)
sketch4.addGeometry(Part.LineSegment(App.Vector(34.1, 13, 0), App.Vector(38.5, 13, 0)), False)
sketch4.addGeometry(Part.LineSegment(App.Vector(38.5, 13, 0), App.Vector(38.5, 10.6, 0)), False)
sketch4.addGeometry(Part.LineSegment(App.Vector(38.5, 10.6, 0), App.Vector(33.9, 6, 0)), False)
sketch4.addGeometry(Part.LineSegment(App.Vector(33.9, 6, 0), App.Vector(30, 6, 0)), False)
sketch4.addGeometry(Part.LineSegment(App.Vector(30, 6, 0), App.Vector(30, 3.5, 0)), False)
sketch4.addGeometry(Part.ArcOfCircle(Part.Circle(App.Vector(30, 0, 0), App.Vector(0, 0, 1), 3.5), math.radians(62), math.radians(90)), False)
sketch4.addGeometry(Part.LineSegment(App.Vector(31.7, 3.1, 0), App.Vector(33.2, 4.6, 0)), False)
sketch4.addGeometry(Part.LineSegment(App.Vector(33.2, 4.6, 0), App.Vector(34.6, 3.2, 0)), False)
sketch4.addGeometry(Part.LineSegment(App.Vector(34.6, 3.2, 0), App.Vector(33.1, 1.7, 0)), False)
sketch4.addGeometry(Part.LineSegment(App.Vector(40, 10, 0), App.Vector(40, 14, 0)), False)
sketch4.addGeometry(Part.LineSegment(App.Vector(40, 14, 0), App.Vector(44, 14, 0)), False)
sketch4.addGeometry(Part.LineSegment(App.Vector(44, 14, 0), App.Vector(44, 10, 0)), False)
sketch4.addGeometry(Part.LineSegment(App.Vector(44, 10, 0), App.Vector(40, 10, 0)), False)
sketch4.addConstraint(Sketcher.Constraint("Coincident", 0, 1, 1, 1))
sketch4.addConstraint(Sketcher.Constraint("Coincident", 1, 2, 2, 1))
sketch4.addConstraint(Sketcher.Constraint("Coincident", 2, 2, 3, 1))
sketch4.addConstraint(Sketcher.Constraint("Coincident", 3, 2, 4, 1))
sketch4.addConstraint(Sketcher.Constraint("Coincident", 4, 2, 5, 1))
sketch4.addConstraint(Sketcher.Constraint("Coincident", 5, 2, 6, 1))
sketch4.addConstraint(Sketcher.Constraint("Coincident", 6, 2, 7, 1))
sketch4.addConstraint(Sketcher.Constraint("Coincident", 7, 2, 8, 1))
sketch4.addConstraint(Sketcher.Constraint("Coincident", 8, 2, 9, 1))
sketch4.addConstraint(Sketcher.Constraint("Coincident", 9, 2, 10, 1))
sketch4.addConstraint(Sketcher.Constraint("Coincident", 10, 2, 11, 1))
sketch4.addConstraint(Sketcher.Constraint("Coincident", 11, 2, 12, 1))
sketch4.addConstraint(Sketcher.Constraint("Coincident", 12, 2, 13, 1))
sketch4.addConstraint(Sketcher.Constraint("Coincident", 13, 2, 14, 1))
sketch4.addConstraint(Sketcher.Constraint("Coincident", 14, 2, 15, 1))
sketch4.addConstraint(Sketcher.Constraint("Coincident", 15, 2, 16, 1))
sketch4.addConstraint(Sketcher.Constraint("Coincident", 16, 2, 17, 1))
sketch4.addConstraint(Sketcher.Constraint("Coincident", 17, 2, 18, 1))
sketch4.addConstraint(Sketcher.Constraint("Coincident", 18, 2, 19, 2))
sketch4.addConstraint(Sketcher.Constraint("Coincident", 19, 1, 20, 1))
sketch4.addConstraint(Sketcher.Constraint("Coincident", 20, 2, 21, 1))
sketch4.addConstraint(Sketcher.Constraint("Coincident", 21, 2, 22, 1))
sketch4.addConstraint(Sketcher.Constraint("Coincident", 22, 2, 0, 2))
sketch4.addConstraint(Sketcher.Constraint("Coincident", 23, 2, 24, 1))
sketch4.addConstraint(Sketcher.Constraint("Coincident", 24, 2, 25, 1))
sketch4.addConstraint(Sketcher.Constraint("Coincident", 25, 2, 26, 1))
sketch4.addConstraint(Sketcher.Constraint("Coincident", 26, 2, 23, 1))
sketch4.addConstraint(Sketcher.Constraint("Horizontal", 1))
sketch4.addConstraint(Sketcher.Constraint("Vertical", 2))
sketch4.addConstraint(Sketcher.Constraint("Horizontal", 4))
sketch4.addConstraint(Sketcher.Constraint("Vertical", 5))
sketch4.addConstraint(Sketcher.Constraint("Horizontal", 6))
sketch4.addConstraint(Sketcher.Constraint("Vertical", 7))
sketch4.addConstraint(Sketcher.Constraint("Horizontal", 8))
sketch4.addConstraint(Sketcher.Constraint("Vertical", 9))
sketch4.addConstraint(Sketcher.Constraint("Horizontal", 10))
sketch4.addConstraint(Sketcher.Constraint("Vertical", 11))
sketch4.addConstraint(Sketcher.Constraint("Horizontal", 12))
sketch4.addConstraint(Sketcher.Constraint("Vertical", 13))
sketch4.addConstraint(Sketcher.Constraint("Horizontal", 14))
sketch4.addConstraint(Sketcher.Constraint("Vertical", 15))
sketch4.addConstraint(Sketcher.Constraint("Horizontal", 17))
sketch4.addConstraint(Sketcher.Constraint("Vertical", 18))
sketch4.addConstraint(Sketcher.Constraint("Vertical", 23))
sketch4.addConstraint(Sketcher.Constraint("Horizontal", 24))
sketch4.addConstraint(Sketcher.Constraint("Vertical", 25))
sketch4.addConstraint(Sketcher.Constraint("Horizontal", 26))
sketch4.addConstraint(Sketcher.Constraint("Coincident", 19, 3, 0, 3))
sketch4.addConstraint(Sketcher.Constraint("Equal", 0, 19))
sketch4.addConstraint(Sketcher.Constraint("PointOnObject", 0, 3, -1))
sketch4.addConstraint(Sketcher.Constraint("PointOnObject", 0, 1, -1))
sketch4.addConstraint(Sketcher.Constraint("Parallel", 3, 16))
sketch4.addConstraint(Sketcher.Constraint("Parallel", 16, 20))
sketch4.addConstraint(Sketcher.Constraint("Perpendicular", 20, 21))
sketch4.addConstraint(Sketcher.Constraint("Perpendicular", 21, 22))
sketch4.addConstraint(Sketcher.Constraint("Vertical", 19, 3, 17, 2))
sketch4.addConstraint(Sketcher.Constraint("Equal", 17, 2))
sketch4.addConstraint(Sketcher.Constraint("Equal", 14, 5))
sketch4.addConstraint(Sketcher.Constraint("Equal", 12, 7))
sketch4.addConstraint(Sketcher.Constraint("Equal", 10, 9))
sketch4.addConstraint(Sketcher.Constraint("Equal", 8, 11))
sketch4.addConstraint(Sketcher.Constraint("Equal", 6, 13))
sketch4.addConstraint(Sketcher.Constraint("Equal", 4, 15))
sketch4.addConstraint(Sketcher.Constraint("Equal", 1, 18))
sketch4.addConstraint(Sketcher.Constraint("Equal", 26, 23))
sketch4.addConstraint(Sketcher.Constraint("Equal", 20, 22))
sketch4.addConstraint(Sketcher.Constraint("Radius", 0, Q("3.5 mm")))
sketch4.addConstraint(Sketcher.Constraint("DistanceX", 12, 2, 12, 1, Q("1 mm")))
sketch4.addConstraint(Sketcher.Constraint("DistanceX", 24, 1, 24, 2, Q("4 mm")))
sketch4.addConstraint(Sketcher.Constraint("Angle", 3, Q("45 deg")))
sketch4.addConstraint(Sketcher.Constraint("Distance", 21, Q("2 mm")))
sketch4.addConstraint(Sketcher.Constraint("DistanceX", 1, 1, 1, 2, Q("2.5 mm")))
sketch4.addConstraint(Sketcher.Constraint("DistanceX", 6, 1, 6, 2, Q("1.5 mm")))
sketch4.addConstraint(Sketcher.Constraint("DistanceX", 8, 1, 8, 2, Q("0.5 mm")))
sketch4.addConstraint(Sketcher.Constraint("DistanceX", 10, 2, 10, 1, Q("9.9 mm")))
sketch4.addConstraint(Sketcher.Constraint("DistanceX", 14, 1, 14, 2, Q("4.4 mm")))
sketch4.addConstraint(Sketcher.Constraint("DistanceX", -1, 1, 0, 3, Q("30 mm")))
sketch4.addConstraint(Sketcher.Constraint("DistanceX", -1, 1, 4, 2, Q("43 mm")))
sketch4.addConstraint(Sketcher.Constraint("DistanceX", -1, 1, 23, 2, Q("40 mm")))
sketch4.addConstraint(Sketcher.Constraint("DistanceY", -1, 1, 23, 2, Q("14 mm")))
sketch4.addConstraint(Sketcher.Constraint("Distance", 20, Q("2.145898 mm")))
sketch4.addConstraint(Sketcher.Constraint("DistanceX", 4, 1, 4, 2, Q("2.37868 mm")))
sketch4.setExpression("Constraints[66]", "Params.sketch4_radius")
sketch4.setExpression("Constraints[67]", "Params.sketch4_width")
sketch4.setExpression("Constraints[68]", "Params.sketch4_width2")
sketch4.setExpression("Constraints[70]", "Params.sketch4_length")
sketch4.setExpression("Constraints[71]", "Params.sketch4_width3")
pad4 = body.newObject("PartDesign::Pad", "Pad003")
pad4.Profile = sketch4
pad4.setExpression("Length", "Params.pad4_length")

sketch5 = body.newObject("Sketcher::SketchObject", "Sketch004")
sketch5.AttachmentSupport = (doc.getObject("XY_Plane"), [""])
sketch5.MapMode = "FlatFace"
sketch5.addGeometry(Part.LineSegment(App.Vector(20, 14, 0), App.Vector(20, -14, 0)), False)
sketch5.addGeometry(Part.LineSegment(App.Vector(20, -14, 0), App.Vector(10, -14, 0)), False)
sketch5.addGeometry(Part.LineSegment(App.Vector(10, -14, 0), App.Vector(10, 14, 0)), False)
sketch5.addGeometry(Part.LineSegment(App.Vector(10, 14, 0), App.Vector(20, 14, 0)), False)
sketch5.addConstraint(Sketcher.Constraint("Coincident", 0, 2, 1, 1))
sketch5.addConstraint(Sketcher.Constraint("Coincident", 1, 2, 2, 1))
sketch5.addConstraint(Sketcher.Constraint("Coincident", 2, 2, 3, 1))
sketch5.addConstraint(Sketcher.Constraint("Coincident", 3, 2, 0, 1))
sketch5.addConstraint(Sketcher.Constraint("Vertical", 0))
sketch5.addConstraint(Sketcher.Constraint("Horizontal", 1))
sketch5.addConstraint(Sketcher.Constraint("Vertical", 2))
sketch5.addConstraint(Sketcher.Constraint("Horizontal", 3))
sketch5.addConstraint(Sketcher.Constraint("DistanceX", 1, 2, 1, 1, Q("10 mm")))
sketch5.addConstraint(Sketcher.Constraint("DistanceY", 0, 2, 0, 1, Q("28 mm")))
sketch5.addConstraint(Sketcher.Constraint("DistanceX", -1, 1, 0, 2, Q("20 mm")))
sketch5.addConstraint(Sketcher.Constraint("DistanceY", 0, 2, -1, 1, Q("14 mm")))
sketch5.setExpression("Constraints[8]", "Params.sketch5_width")
sketch5.setExpression("Constraints[9]", "Params.sketch5_height")
pocket1 = body.newObject("PartDesign::Pocket", "Pocket")
pocket1.Profile = sketch5
pocket1.Type = "ThroughAll"
pocket1.Reversed = True
doc.recompute()

fillet = body.newObject("PartDesign::Fillet", "Fillet")
fillet.Base = (pocket1, edges_at(pocket1, [
    (45, -15, 230),
    (45, 15, 230),
    (-15, 15, 230),
    (-15, -15, 230),
]))
fillet.setExpression("Radius", "Params.fillet_radius")

sketch6 = body.newObject("Sketcher::SketchObject", "Sketch005")
sketch6.AttachmentSupport = (doc.getObject("XZ_Plane"), [""])
sketch6.MapMode = "FlatFace"
sketch6.AttachmentOffset = App.Placement(App.Vector(0, 0, -15), App.Rotation())
sketch6.addGeometry(Part.Circle(App.Vector(15, 230, 0), App.Vector(0, 0, 1), 4), False)
sketch6.addConstraint(Sketcher.Constraint("Diameter", 0, Q("8 mm")))
sketch6.addConstraint(Sketcher.Constraint("DistanceX", -1, 1, 0, 3, Q("15 mm")))
sketch6.addConstraint(Sketcher.Constraint("DistanceY", -1, 1, 0, 3, Q("230 mm")))
sketch6.setExpression("Constraints[0]", "Params.sketch6_diameter")
pocket2 = body.newObject("PartDesign::Pocket", "Pocket001")
pocket2.Profile = sketch6
pocket2.setExpression("Length", "Params.pocket2_length")
pocket2.Reversed = True

sketch7 = body.newObject("Sketcher::SketchObject", "Sketch006")
sketch7.AttachmentSupport = (doc.getObject("XZ_Plane"), [""])
sketch7.MapMode = "FlatFace"
sketch7.AttachmentOffset = App.Placement(App.Vector(0, 0, -15), App.Rotation())
sketch7.addGeometry(Part.Circle(App.Vector(33.2, 230, 0), App.Vector(0, 0, 1), 2.5), False)
sketch7.addGeometry(Part.Circle(App.Vector(-3.2, 230, 0), App.Vector(0, 0, 1), 2.5), False)
sketch7.addConstraint(Sketcher.Constraint("Equal", 0, 1))
sketch7.addConstraint(Sketcher.Constraint("Horizontal", 0, 3, 1, 3))
sketch7.addConstraint(Sketcher.Constraint("Diameter", 0, Q("5 mm")))
sketch7.addConstraint(Sketcher.Constraint("DistanceY", -1, 1, 0, 3, Q("230 mm")))
sketch7.addConstraint(Sketcher.Constraint("DistanceX", 1, 3, 0, 3, Q("36.5 mm")))
sketch7.addConstraint(Sketcher.Constraint("DistanceX", -1, 1, 0, 3, Q("33.25 mm")))
sketch7.setExpression("Constraints[2]", "Params.sketch7_diameter")
pocket3 = body.newObject("PartDesign::Pocket", "Pocket002")
pocket3.Profile = sketch7
pocket3.setExpression("Length", "Params.pocket3_length")
pocket3.Reversed = True

doc.recompute()
